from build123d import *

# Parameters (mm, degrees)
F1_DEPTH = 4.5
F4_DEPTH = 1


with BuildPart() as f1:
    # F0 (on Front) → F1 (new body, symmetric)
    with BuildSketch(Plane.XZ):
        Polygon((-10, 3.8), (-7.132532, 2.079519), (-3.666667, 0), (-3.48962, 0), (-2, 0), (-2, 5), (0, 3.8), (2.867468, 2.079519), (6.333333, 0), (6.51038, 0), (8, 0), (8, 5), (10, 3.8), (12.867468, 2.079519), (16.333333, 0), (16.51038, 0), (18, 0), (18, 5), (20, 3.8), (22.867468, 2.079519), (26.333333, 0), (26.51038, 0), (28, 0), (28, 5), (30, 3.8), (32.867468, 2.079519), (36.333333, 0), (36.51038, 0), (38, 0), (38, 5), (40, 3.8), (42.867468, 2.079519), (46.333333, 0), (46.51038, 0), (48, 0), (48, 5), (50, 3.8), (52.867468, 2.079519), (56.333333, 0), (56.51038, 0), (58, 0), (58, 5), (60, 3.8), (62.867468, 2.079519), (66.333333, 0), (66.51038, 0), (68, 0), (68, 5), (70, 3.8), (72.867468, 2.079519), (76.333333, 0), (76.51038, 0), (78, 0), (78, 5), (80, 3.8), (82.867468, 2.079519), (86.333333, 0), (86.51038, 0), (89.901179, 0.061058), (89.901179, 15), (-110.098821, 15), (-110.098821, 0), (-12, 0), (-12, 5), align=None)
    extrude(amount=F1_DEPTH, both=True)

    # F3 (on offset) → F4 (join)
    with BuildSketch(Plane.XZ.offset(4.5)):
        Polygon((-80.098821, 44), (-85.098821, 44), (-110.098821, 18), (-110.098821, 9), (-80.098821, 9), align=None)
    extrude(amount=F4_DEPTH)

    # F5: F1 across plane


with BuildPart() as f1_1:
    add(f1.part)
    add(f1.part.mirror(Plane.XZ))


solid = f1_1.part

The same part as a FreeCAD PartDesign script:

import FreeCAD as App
import Part
import Sketcher

V = App.Vector
Q = App.Units.Quantity

doc = App.newDocument("Part")
body = doc.addObject("PartDesign::Body", "Body")

# Sketch on XZ plane
sketch1 = body.newObject("Sketcher::SketchObject", "Sketch")
sketch1.AttachmentSupport = (doc.getObject("XZ_Plane"), [""])
sketch1.MapMode = "FlatFace"
sketch1.addGeometry([
    Part.LineSegment(V(-10, 3.8, 0), V(-7.13, 2.08, 0)),  # 0
    Part.LineSegment(V(-7.13, 2.08, 0), V(-3.67, 0, 0)),  # 1
    Part.LineSegment(V(-3.67, 0, 0), V(-2, 0, 0)),  # 2
    Part.LineSegment(V(-2, 0, 0), V(-2, 5, 0)),  # 3
    Part.LineSegment(V(-2, 5, 0), V(0, 3.8, 0)),  # 4
    Part.LineSegment(V(0, 3.8, 0), V(2.87, 2.08, 0)),  # 5
    Part.LineSegment(V(2.87, 2.08, 0), V(6.33, 0, 0)),  # 6
    Part.LineSegment(V(6.33, 0, 0), V(8, 0, 0)),  # 7
    Part.LineSegment(V(8, 0, 0), V(8, 5, 0)),  # 8
    Part.LineSegment(V(8, 5, 0), V(10, 3.8, 0)),  # 9
    Part.LineSegment(V(10, 3.8, 0), V(12.87, 2.08, 0)),  # 10
    Part.LineSegment(V(12.87, 2.08, 0), V(16.33, 0, 0)),  # 11
    Part.LineSegment(V(16.33, 0, 0), V(18, 0, 0)),  # 12
    Part.LineSegment(V(18, 0, 0), V(18, 5, 0)),  # 13
    Part.LineSegment(V(18, 5, 0), V(20, 3.8, 0)),  # 14
    Part.LineSegment(V(20, 3.8, 0), V(22.87, 2.08, 0)),  # 15
    Part.LineSegment(V(22.87, 2.08, 0), V(26.33, 0, 0)),  # 16
    Part.LineSegment(V(26.33, 0, 0), V(28, 0, 0)),  # 17
    Part.LineSegment(V(28, 0, 0), V(28, 5, 0)),  # 18
    Part.LineSegment(V(28, 5, 0), V(30, 3.8, 0)),  # 19
    Part.LineSegment(V(30, 3.8, 0), V(32.87, 2.08, 0)),  # 20
    Part.LineSegment(V(32.87, 2.08, 0), V(36.33, 0, 0)),  # 21
    Part.LineSegment(V(36.33, 0, 0), V(38, 0, 0)),  # 22
    Part.LineSegment(V(38, 0, 0), V(38, 5, 0)),  # 23
    Part.LineSegment(V(38, 5, 0), V(40, 3.8, 0)),  # 24
    Part.LineSegment(V(40, 3.8, 0), V(42.87, 2.08, 0)),  # 25
    Part.LineSegment(V(42.87, 2.08, 0), V(46.33, 0, 0)),  # 26
    Part.LineSegment(V(46.33, 0, 0), V(48, 0, 0)),  # 27
    Part.LineSegment(V(48, 0, 0), V(48, 5, 0)),  # 28
    Part.LineSegment(V(48, 5, 0), V(50, 3.8, 0)),  # 29
    Part.LineSegment(V(50, 3.8, 0), V(52.87, 2.08, 0)),  # 30
    Part.LineSegment(V(52.87, 2.08, 0), V(56.33, 0, 0)),  # 31
    Part.LineSegment(V(56.33, 0, 0), V(58, 0, 0)),  # 32
    Part.LineSegment(V(58, 0, 0), V(58, 5, 0)),  # 33
    Part.LineSegment(V(58, 5, 0), V(60, 3.8, 0)),  # 34
    Part.LineSegment(V(60, 3.8, 0), V(62.87, 2.08, 0)),  # 35
    Part.LineSegment(V(62.87, 2.08, 0), V(66.33, 0, 0)),  # 36
    Part.LineSegment(V(66.33, 0, 0), V(68, 0, 0)),  # 37
    Part.LineSegment(V(68, 0, 0), V(68, 5, 0)),  # 38
    Part.LineSegment(V(68, 5, 0), V(70, 3.8, 0)),  # 39
    Part.LineSegment(V(70, 3.8, 0), V(72.87, 2.08, 0)),  # 40
    Part.LineSegment(V(72.87, 2.08, 0), V(76.33, 0, 0)),  # 41
    Part.LineSegment(V(76.33, 0, 0), V(78, 0, 0)),  # 42
    Part.LineSegment(V(78, 0, 0), V(78, 5, 0)),  # 43
    Part.LineSegment(V(78, 5, 0), V(80, 3.8, 0)),  # 44
    Part.LineSegment(V(80, 3.8, 0), V(82.87, 2.08, 0)),  # 45
    Part.LineSegment(V(82.87, 2.08, 0), V(86.33, 0, 0)),  # 46
    Part.LineSegment(V(86.33, 0, 0), V(86.51, 0, 0)),  # 47
    Part.LineSegment(V(86.51, 0, 0), V(89.9, 0.06, 0)),  # 48
    Part.LineSegment(V(89.9, 0.06, 0), V(89.9, 15, 0)),  # 49
    Part.LineSegment(V(89.9, 15, 0), V(-110.1, 15, 0)),  # 50
    Part.LineSegment(V(-110.1, 15, 0), V(-110.1, 0, 0)),  # 51
    Part.LineSegment(V(-110.1, 0, 0), V(-12, 0, 0)),  # 52
    Part.LineSegment(V(-12, 0, 0), V(-12, 5, 0)),  # 53
    Part.LineSegment(V(-12, 5, 0), V(-10, 3.8, 0)),  # 54
], False)
sketch1.addConstraint([
    Sketcher.Constraint("Coincident", 0, 2, 1, 1),
    Sketcher.Constraint("Coincident", 1, 2, 2, 1),
    Sketcher.Constraint("Coincident", 2, 2, 3, 1),
    Sketcher.Constraint("Coincident", 3, 2, 4, 1),
    Sketcher.Constraint("Coincident", 4, 2, 5, 1),
    Sketcher.Constraint("Coincident", 5, 2, 6, 1),
    Sketcher.Constraint("Coincident", 6, 2, 7, 1),
    Sketcher.Constraint("Coincident", 7, 2, 8, 1),
    Sketcher.Constraint("Coincident", 8, 2, 9, 1),
    Sketcher.Constraint("Coincident", 9, 2, 10, 1),
    Sketcher.Constraint("Coincident", 10, 2, 11, 1),
    Sketcher.Constraint("Coincident", 11, 2, 12, 1),
    Sketcher.Constraint("Coincident", 12, 2, 13, 1),
    Sketcher.Constraint("Coincident", 13, 2, 14, 1),
    Sketcher.Constraint("Coincident", 14, 2, 15, 1),
    Sketcher.Constraint("Coincident", 15, 2, 16, 1),
    Sketcher.Constraint("Coincident", 16, 2, 17, 1),
    Sketcher.Constraint("Coincident", 17, 2, 18, 1),
    Sketcher.Constraint("Coincident", 18, 2, 19, 1),
    Sketcher.Constraint("Coincident", 19, 2, 20, 1),
    Sketcher.Constraint("Coincident", 20, 2, 21, 1),
    Sketcher.Constraint("Coincident", 21, 2, 22, 1),
    Sketcher.Constraint("Coincident", 22, 2, 23, 1),
    Sketcher.Constraint("Coincident", 23, 2, 24, 1),
    Sketcher.Constraint("Coincident", 24, 2, 25, 1),
    Sketcher.Constraint("Coincident", 25, 2, 26, 1),
    Sketcher.Constraint("Coincident", 26, 2, 27, 1),
    Sketcher.Constraint("Coincident", 27, 2, 28, 1),
    Sketcher.Constraint("Coincident", 28, 2, 29, 1),
    Sketcher.Constraint("Coincident", 29, 2, 30, 1),
    Sketcher.Constraint("Coincident", 30, 2, 31, 1),
    Sketcher.Constraint("Coincident", 31, 2, 32, 1),
    Sketcher.Constraint("Coincident", 32, 2, 33, 1),
    Sketcher.Constraint("Coincident", 33, 2, 34, 1),
    Sketcher.Constraint("Coincident", 34, 2, 35, 1),
    Sketcher.Constraint("Coincident", 35, 2, 36, 1),
    Sketcher.Constraint("Coincident", 36, 2, 37, 1),
    Sketcher.Constraint("Coincident", 37, 2, 38, 1),
    Sketcher.Constraint("Coincident", 38, 2, 39, 1),
    Sketcher.Constraint("Coincident", 39, 2, 40, 1),
    Sketcher.Constraint("Coincident", 40, 2, 41, 1),
    Sketcher.Constraint("Coincident", 41, 2, 42, 1),
    Sketcher.Constraint("Coincident", 42, 2, 43, 1),
    Sketcher.Constraint("Coincident", 43, 2, 44, 1),
    Sketcher.Constraint("Coincident", 44, 2, 45, 1),
    Sketcher.Constraint("Coincident", 45, 2, 46, 1),
    Sketcher.Constraint("Coincident", 46, 2, 47, 1),
    Sketcher.Constraint("Coincident", 47, 2, 48, 1),
    Sketcher.Constraint("Coincident", 48, 2, 49, 1),
    Sketcher.Constraint("Coincident", 49, 2, 50, 1),
    Sketcher.Constraint("Coincident", 50, 2, 51, 1),
    Sketcher.Constraint("Coincident", 51, 2, 52, 1),
    Sketcher.Constraint("Coincident", 52, 2, 53, 1),
    Sketcher.Constraint("Coincident", 53, 2, 54, 1),
    Sketcher.Constraint("Coincident", 54, 2, 0, 1),
    Sketcher.Constraint("Horizontal", 2),
    Sketcher.Constraint("Vertical", 3),
    Sketcher.Constraint("Horizontal", 7),
    Sketcher.Constraint("Vertical", 8),
    Sketcher.Constraint("Horizontal", 12),
    Sketcher.Constraint("Vertical", 13),
    Sketcher.Constraint("Horizontal", 17),
    Sketcher.Constraint("Vertical", 18),
    Sketcher.Constraint("Horizontal", 22),
    Sketcher.Constraint("Vertical", 23),
    Sketcher.Constraint("Horizontal", 27),
    Sketcher.Constraint("Vertical", 28),
    Sketcher.Constraint("Horizontal", 32),
    Sketcher.Constraint("Vertical", 33),
    Sketcher.Constraint("Horizontal", 37),
    Sketcher.Constraint("Vertical", 38),
    Sketcher.Constraint("Horizontal", 42),
    Sketcher.Constraint("Vertical", 43),
    Sketcher.Constraint("Horizontal", 47),
    Sketcher.Constraint("Vertical", 49),
    Sketcher.Constraint("Horizontal", 50),
    Sketcher.Constraint("Vertical", 51),
    Sketcher.Constraint("Horizontal", 52),
    Sketcher.Constraint("Vertical", 53),
    Sketcher.Constraint("Symmetric", 9, 2, 54, 2, -2),
    Sketcher.Constraint("PointOnObject", 1, 2, -1),
    Sketcher.Constraint("PointOnObject", 4, 2, -2),
    Sketcher.Constraint("PointOnObject", 6, 2, -1),
    Sketcher.Constraint("PointOnObject", 11, 2, -1),
    Sketcher.Constraint("PointOnObject", 16, 2, -1),
    Sketcher.Constraint("PointOnObject", 21, 2, -1),
    Sketcher.Constraint("PointOnObject", 26, 2, -1),
    Sketcher.Constraint("PointOnObject", 31, 2, -1),
    Sketcher.Constraint("PointOnObject", 36, 2, -1),
    Sketcher.Constraint("PointOnObject", 41, 2, -1),
    Sketcher.Constraint("PointOnObject", 46, 2, -1),
    Sketcher.Constraint("PointOnObject", 51, 2, -1),
    Sketcher.Constraint("Parallel", 0, 1),
    Sketcher.Constraint("Parallel", 1, 4),
    Sketcher.Constraint("Parallel", 4, 5),
    Sketcher.Constraint("Parallel", 5, 6),
    Sketcher.Constraint("Parallel", 6, 9),
    Sketcher.Constraint("Parallel", 9, 10),
    Sketcher.Constraint("Parallel", 10, 11),
    Sketcher.Constraint("Parallel", 11, 14),
    Sketcher.Constraint("Parallel", 14, 15),
    Sketcher.Constraint("Parallel", 15, 16),
    Sketcher.Constraint("Parallel", 16, 19),
    Sketcher.Constraint("Parallel", 19, 20),
    Sketcher.Constraint("Parallel", 20, 21),
    Sketcher.Constraint("Parallel", 21, 24),
    Sketcher.Constraint("Parallel", 24, 25),
    Sketcher.Constraint("Parallel", 25, 26),
    Sketcher.Constraint("Parallel", 26, 29),
    Sketcher.Constraint("Parallel", 29, 30),
    Sketcher.Constraint("Parallel", 30, 31),
    Sketcher.Constraint("Parallel", 31, 34),
    Sketcher.Constraint("Parallel", 34, 35),
    Sketcher.Constraint("Parallel", 35, 36),
    Sketcher.Constraint("Parallel", 36, 39),
    Sketcher.Constraint("Parallel", 39, 40),
    Sketcher.Constraint("Parallel", 40, 41),
    Sketcher.Constraint("Parallel", 41, 44),
    Sketcher.Constraint("Parallel", 44, 45),
    Sketcher.Constraint("Parallel", 45, 46),
    Sketcher.Constraint("Parallel", 46, 54),
    Sketcher.Constraint("Horizontal", 0, 2, 5, 2),
    Sketcher.Constraint("Horizontal", 3, 2, 8, 2),
    Sketcher.Constraint("Horizontal", 4, 2, 9, 2),
    Sketcher.Constraint("Horizontal", 5, 2, 10, 2),
    Sketcher.Constraint("Horizontal", 8, 2, 13, 2),
    Sketcher.Constraint("Horizontal", 9, 2, 14, 2),
    Sketcher.Constraint("Horizontal", 10, 2, 15, 2),
    Sketcher.Constraint("Horizontal", 13, 2, 18, 2),
    Sketcher.Constraint("Horizontal", 14, 2, 19, 2),
    Sketcher.Constraint("Horizontal", 15, 2, 20, 2),
    Sketcher.Constraint("Horizontal", 18, 2, 23, 2),
    Sketcher.Constraint("Horizontal", 19, 2, 24, 2),
    Sketcher.Constraint("Horizontal", 20, 2, 25, 2),
    Sketcher.Constraint("Horizontal", 23, 2, 28, 2),
    Sketcher.Constraint("Horizontal", 24, 2, 29, 2),
    Sketcher.Constraint("Horizontal", 25, 2, 30, 2),
    Sketcher.Constraint("Horizontal", 28, 2, 33, 2),
    Sketcher.Constraint("Horizontal", 29, 2, 34, 2),
    Sketcher.Constraint("Horizontal", 30, 2, 35, 2),
    Sketcher.Constraint("Horizontal", 33, 2, 38, 2),
    Sketcher.Constraint("Horizontal", 34, 2, 39, 2),
    Sketcher.Constraint("Horizontal", 35, 2, 40, 2),
    Sketcher.Constraint("Horizontal", 38, 2, 43, 2),
    Sketcher.Constraint("Horizontal", 39, 2, 44, 2),
    Sketcher.Constraint("Horizontal", 40, 2, 45, 2),
    Sketcher.Constraint("Horizontal", 43, 2, 53, 2),
    Sketcher.Constraint("Equal", 7, 12),
    Sketcher.Constraint("Equal", 12, 17),
    Sketcher.Constraint("Equal", 17, 22),
    Sketcher.Constraint("Equal", 22, 27),
    Sketcher.Constraint("Equal", 27, 32),
    Sketcher.Constraint("Equal", 32, 37),
    Sketcher.Constraint("Equal", 37, 42),
    Sketcher.Constraint("DistanceX", 50, 2, 50, 1, Q("200 mm")),
    Sketcher.Constraint("DistanceY", 3, 1, 3, 2, Q("5 mm")),
    Sketcher.Constraint("DistanceY", 51, 2, 51, 1, Q("15 mm")),
    Sketcher.Constraint("DistanceX", 2, 2, -1, 1, Q("2 mm")),
    Sketcher.Constraint("DistanceX", -1, 1, 7, 2, Q("8 mm")),
    Sketcher.Constraint("DistanceY", -1, 1, 4, 2, Q("3.8 mm")),
    Sketcher.Constraint("DistanceX", 52, 1, 52, 2, Q("98.098821 mm")),
    Sketcher.Constraint("DistanceX", 47, 2, 48, 2, Q("3.390799 mm")),
    Sketcher.Constraint("Distance", 1, Q("4.041858 mm")),
    Sketcher.Constraint("Distance", 48, Q("3.391349 mm")),
])
pad1 = body.newObject("PartDesign::Pad", "Pad")
pad1.Profile = sketch1
pad1.Length = 9
pad1.Midplane = True

# Sketch on XZ plane
sketch2 = body.newObject("Sketcher::SketchObject", "Sketch001")
sketch2.AttachmentSupport = (doc.getObject("XZ_Plane"), [""])
sketch2.MapMode = "FlatFace"
sketch2.AttachmentOffset = App.Placement(V(0, 0, 4.5), App.Rotation())
sketch2.addGeometry([
    Part.LineSegment(V(-80, 44, 0), V(-85, 44, 0)),  # 0
    Part.LineSegment(V(-85, 44, 0), V(-110, 18, 0)),  # 1
    Part.LineSegment(V(-110, 18, 0), V(-110, 9, 0)),  # 2
    Part.LineSegment(V(-110, 9, 0), V(-80, 9, 0)),  # 3
    Part.LineSegment(V(-80, 9, 0), V(-80, 44, 0)),  # 4
], False)
sketch2.addConstraint([
    Sketcher.Constraint("Coincident", 0, 2, 1, 1),
    Sketcher.Constraint("Coincident", 1, 2, 2, 1),
    Sketcher.Constraint("Coincident", 2, 2, 3, 1),
    Sketcher.Constraint("Coincident", 3, 2, 4, 1),
    Sketcher.Constraint("Coincident", 4, 2, 0, 1),
    Sketcher.Constraint("Horizontal", 0),
    Sketcher.Constraint("Vertical", 2),
    Sketcher.Constraint("Horizontal", 3),
    Sketcher.Constraint("Vertical", 4),
    Sketcher.Constraint("DistanceX", 0, 2, 0, 1, Q("5 mm")),
    Sketcher.Constraint("DistanceX", 3, 1, 3, 2, Q("30 mm")),
    Sketcher.Constraint("DistanceY", 2, 2, 2, 1, Q("9 mm")),
    Sketcher.Constraint("DistanceY", 4, 1, 4, 2, Q("35 mm")),
    Sketcher.Constraint("DistanceY", -1, 1, 0, 2, Q("44 mm")),
    Sketcher.Constraint("DistanceX", 0, 2, -1, 1, Q("85.098821 mm")),
])
pad2 = body.newObject("PartDesign::Pad", "Pad001")
pad2.Profile = sketch2
pad2.Length = 1
body2 = doc.addObject("PartDesign::Body", "Body001")
doc.recompute()

body2.BaseFeature = body
doc.recompute()

mirroring = doc.addObject("Part::Mirroring", "Mirroring")
mirroring.Source = body
mirroring.Base = V(0, 0, 0)
mirroring.Normal = V(0, -1, 0)
body3 = doc.addObject("PartDesign::Body", "Body002")
body3.BaseFeature = mirroring
boolean = body2.newObject("PartDesign::Boolean", "Boolean")
boolean.Type = "Fuse"
boolean.addObjects([body3])
doc.recompute()
mirroring.Visibility = False

doc.recompute()
